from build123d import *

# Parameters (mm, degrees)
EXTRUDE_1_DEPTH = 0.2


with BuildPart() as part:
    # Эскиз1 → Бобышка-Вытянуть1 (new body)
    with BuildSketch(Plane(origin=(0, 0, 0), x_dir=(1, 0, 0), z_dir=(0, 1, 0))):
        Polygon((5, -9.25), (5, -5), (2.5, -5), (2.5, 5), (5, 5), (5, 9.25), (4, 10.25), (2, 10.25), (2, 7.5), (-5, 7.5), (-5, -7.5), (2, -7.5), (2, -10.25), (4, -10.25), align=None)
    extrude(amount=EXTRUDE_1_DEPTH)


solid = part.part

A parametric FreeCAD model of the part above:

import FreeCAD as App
import Part
import Sketcher
from FreeCAD import Vector

doc = App.newDocument("Part")
body = doc.addObject("PartDesign::Body", "Body")

sketch1 = body.newObject("Sketcher::SketchObject", "Sketch")
sketch1.AttachmentSupport = (doc.getObject("XZ_Plane"), [""])
sketch1.MapMode = "FlatFace"
sketch1.addGeometry(Part.LineSegment(Vector(5, 9.2, 0), Vector(5, 5, 0)), False)
sketch1.addGeometry(Part.LineSegment(Vector(5, 5, 0), Vector(2.5, 5, 0)), False)
sketch1.addGeometry(Part.LineSegment(Vector(2.5, 5, 0), Vector(2.5, -5, 0)), False)
sketch1.addGeometry(Part.LineSegment(Vector(2.5, -5, 0), Vector(5, -5, 0)), False)
sketch1.addGeometry(Part.LineSegment(Vector(5, -5, 0), Vector(5, -9.2, 0)), False)
sketch1.addGeometry(Part.LineSegment(Vector(5, -9.2, 0), Vector(4, -10.2, 0)), False)
sketch1.addGeometry(Part.LineSegment(Vector(4, -10.2, 0), Vector(2, -10.2, 0)), False)
sketch1.addGeometry(Part.LineSegment(Vector(2, -10.2, 0), Vector(2, -7.5, 0)), False)
sketch1.addGeometry(Part.LineSegment(Vector(2, -7.5, 0), Vector(-5, -7.5, 0)), False)
sketch1.addGeometry(Part.LineSegment(Vector(-5, -7.5, 0), Vector(-5, 7.5, 0)), False)
sketch1.addGeometry(Part.LineSegment(Vector(-5, 7.5, 0), Vector(2, 7.5, 0)), False)
sketch1.addGeometry(Part.LineSegment(Vector(2, 7.5, 0), Vector(2, 10.2, 0)), False)
sketch1.addGeometry(Part.LineSegment(Vector(2, 10.2, 0), Vector(4, 10.2, 0)), False)
sketch1.addGeometry(Part.LineSegment(Vector(4, 10.2, 0), Vector(5, 9.2, 0)), False)
sketch1.addConstraint(Sketcher.Constraint("Coincident", 0, 2, 1, 1))
sketch1.addConstraint(Sketcher.Constraint("Coincident", 1, 2, 2, 1))
sketch1.addConstraint(Sketcher.Constraint("Coincident", 2, 2, 3, 1))
sketch1.addConstraint(Sketcher.Constraint("Coincident", 3, 2, 4, 1))
sketch1.addConstraint(Sketcher.Constraint("Coincident", 4, 2, 5, 1))
sketch1.addConstraint(Sketcher.Constraint("Coincident", 5, 2, 6, 1))
sketch1.addConstraint(Sketcher.Constraint("Coincident", 6, 2, 7, 1))
sketch1.addConstraint(Sketcher.Constraint("Coincident", 7, 2, 8, 1))
sketch1.addConstraint(Sketcher.Constraint("Coincident", 8, 2, 9, 1))
sketch1.addConstraint(Sketcher.Constraint("Coincident", 9, 2, 10, 1))
sketch1.addConstraint(Sketcher.Constraint("Coincident", 10, 2, 11, 1))
sketch1.addConstraint(Sketcher.Constraint("Coincident", 11, 2, 12, 1))
sketch1.addConstraint(Sketcher.Constraint("Coincident", 12, 2, 13, 1))
sketch1.addConstraint(Sketcher.Constraint("Coincident", 13, 2, 0, 1))
sketch1.addConstraint(Sketcher.Constraint("Vertical", 0))
sketch1.addConstraint(Sketcher.Constraint("Horizontal", 1))
sketch1.addConstraint(Sketcher.Constraint("Vertical", 2))
sketch1.addConstraint(Sketcher.Constraint("Horizontal", 3))
sketch1.addConstraint(Sketcher.Constraint("Vertical", 4))
sketch1.addConstraint(Sketcher.Constraint("Horizontal", 6))
sketch1.addConstraint(Sketcher.Constraint("Vertical", 7))
sketch1.addConstraint(Sketcher.Constraint("Horizontal", 8))
sketch1.addConstraint(Sketcher.Constraint("Vertical", 9))
sketch1.addConstraint(Sketcher.Constraint("Horizontal", 10))
sketch1.addConstraint(Sketcher.Constraint("Vertical", 11))
sketch1.addConstraint(Sketcher.Constraint("Horizontal", 12))
sketch1.addConstraint(Sketcher.Constraint("Symmetric", 0, 2, 3, 2, -1))
sketch1.addConstraint(Sketcher.Constraint("Symmetric", 7, 2, 10, 2, -1))
sketch1.addConstraint(Sketcher.Constraint("Symmetric", 5, 2, 12, 2, -1))
sketch1.addConstraint(Sketcher.Constraint("Perpendicular", 5, 13))
sketch1.addConstraint(Sketcher.Constraint("Equal", 0, 4))
sketch1.addConstraint(Sketcher.Constraint("DistanceX", 6, 2, 6, 1, 2.0))
sketch1.addConstraint(Sketcher.Constraint("DistanceX", 8, 2, 8, 1, 7.0))
sketch1.addConstraint(Sketcher.Constraint("DistanceY", 2, 2, 2, 1, 10.0))
sketch1.addConstraint(Sketcher.Constraint("DistanceY", 9, 1, 9, 2, 15.0))
sketch1.addConstraint(Sketcher.Constraint("DistanceX", 1, 2, 1, 1, 2.5))
sketch1.addConstraint(Sketcher.Constraint("DistanceX", -1, 1, 0, 2, 5.0))
sketch1.addConstraint(Sketcher.Constraint("DistanceX", -1, 1, 5, 2, 4.0))
sketch1.addConstraint(Sketcher.Constraint("DistanceY", 0, 2, 0, 1, 4.25))
pad1 = body.newObject("PartDesign::Pad", "Pad")
pad1.Profile = sketch1
pad1.Length = 0.2
pad1.Reversed = True

doc.recompute()
